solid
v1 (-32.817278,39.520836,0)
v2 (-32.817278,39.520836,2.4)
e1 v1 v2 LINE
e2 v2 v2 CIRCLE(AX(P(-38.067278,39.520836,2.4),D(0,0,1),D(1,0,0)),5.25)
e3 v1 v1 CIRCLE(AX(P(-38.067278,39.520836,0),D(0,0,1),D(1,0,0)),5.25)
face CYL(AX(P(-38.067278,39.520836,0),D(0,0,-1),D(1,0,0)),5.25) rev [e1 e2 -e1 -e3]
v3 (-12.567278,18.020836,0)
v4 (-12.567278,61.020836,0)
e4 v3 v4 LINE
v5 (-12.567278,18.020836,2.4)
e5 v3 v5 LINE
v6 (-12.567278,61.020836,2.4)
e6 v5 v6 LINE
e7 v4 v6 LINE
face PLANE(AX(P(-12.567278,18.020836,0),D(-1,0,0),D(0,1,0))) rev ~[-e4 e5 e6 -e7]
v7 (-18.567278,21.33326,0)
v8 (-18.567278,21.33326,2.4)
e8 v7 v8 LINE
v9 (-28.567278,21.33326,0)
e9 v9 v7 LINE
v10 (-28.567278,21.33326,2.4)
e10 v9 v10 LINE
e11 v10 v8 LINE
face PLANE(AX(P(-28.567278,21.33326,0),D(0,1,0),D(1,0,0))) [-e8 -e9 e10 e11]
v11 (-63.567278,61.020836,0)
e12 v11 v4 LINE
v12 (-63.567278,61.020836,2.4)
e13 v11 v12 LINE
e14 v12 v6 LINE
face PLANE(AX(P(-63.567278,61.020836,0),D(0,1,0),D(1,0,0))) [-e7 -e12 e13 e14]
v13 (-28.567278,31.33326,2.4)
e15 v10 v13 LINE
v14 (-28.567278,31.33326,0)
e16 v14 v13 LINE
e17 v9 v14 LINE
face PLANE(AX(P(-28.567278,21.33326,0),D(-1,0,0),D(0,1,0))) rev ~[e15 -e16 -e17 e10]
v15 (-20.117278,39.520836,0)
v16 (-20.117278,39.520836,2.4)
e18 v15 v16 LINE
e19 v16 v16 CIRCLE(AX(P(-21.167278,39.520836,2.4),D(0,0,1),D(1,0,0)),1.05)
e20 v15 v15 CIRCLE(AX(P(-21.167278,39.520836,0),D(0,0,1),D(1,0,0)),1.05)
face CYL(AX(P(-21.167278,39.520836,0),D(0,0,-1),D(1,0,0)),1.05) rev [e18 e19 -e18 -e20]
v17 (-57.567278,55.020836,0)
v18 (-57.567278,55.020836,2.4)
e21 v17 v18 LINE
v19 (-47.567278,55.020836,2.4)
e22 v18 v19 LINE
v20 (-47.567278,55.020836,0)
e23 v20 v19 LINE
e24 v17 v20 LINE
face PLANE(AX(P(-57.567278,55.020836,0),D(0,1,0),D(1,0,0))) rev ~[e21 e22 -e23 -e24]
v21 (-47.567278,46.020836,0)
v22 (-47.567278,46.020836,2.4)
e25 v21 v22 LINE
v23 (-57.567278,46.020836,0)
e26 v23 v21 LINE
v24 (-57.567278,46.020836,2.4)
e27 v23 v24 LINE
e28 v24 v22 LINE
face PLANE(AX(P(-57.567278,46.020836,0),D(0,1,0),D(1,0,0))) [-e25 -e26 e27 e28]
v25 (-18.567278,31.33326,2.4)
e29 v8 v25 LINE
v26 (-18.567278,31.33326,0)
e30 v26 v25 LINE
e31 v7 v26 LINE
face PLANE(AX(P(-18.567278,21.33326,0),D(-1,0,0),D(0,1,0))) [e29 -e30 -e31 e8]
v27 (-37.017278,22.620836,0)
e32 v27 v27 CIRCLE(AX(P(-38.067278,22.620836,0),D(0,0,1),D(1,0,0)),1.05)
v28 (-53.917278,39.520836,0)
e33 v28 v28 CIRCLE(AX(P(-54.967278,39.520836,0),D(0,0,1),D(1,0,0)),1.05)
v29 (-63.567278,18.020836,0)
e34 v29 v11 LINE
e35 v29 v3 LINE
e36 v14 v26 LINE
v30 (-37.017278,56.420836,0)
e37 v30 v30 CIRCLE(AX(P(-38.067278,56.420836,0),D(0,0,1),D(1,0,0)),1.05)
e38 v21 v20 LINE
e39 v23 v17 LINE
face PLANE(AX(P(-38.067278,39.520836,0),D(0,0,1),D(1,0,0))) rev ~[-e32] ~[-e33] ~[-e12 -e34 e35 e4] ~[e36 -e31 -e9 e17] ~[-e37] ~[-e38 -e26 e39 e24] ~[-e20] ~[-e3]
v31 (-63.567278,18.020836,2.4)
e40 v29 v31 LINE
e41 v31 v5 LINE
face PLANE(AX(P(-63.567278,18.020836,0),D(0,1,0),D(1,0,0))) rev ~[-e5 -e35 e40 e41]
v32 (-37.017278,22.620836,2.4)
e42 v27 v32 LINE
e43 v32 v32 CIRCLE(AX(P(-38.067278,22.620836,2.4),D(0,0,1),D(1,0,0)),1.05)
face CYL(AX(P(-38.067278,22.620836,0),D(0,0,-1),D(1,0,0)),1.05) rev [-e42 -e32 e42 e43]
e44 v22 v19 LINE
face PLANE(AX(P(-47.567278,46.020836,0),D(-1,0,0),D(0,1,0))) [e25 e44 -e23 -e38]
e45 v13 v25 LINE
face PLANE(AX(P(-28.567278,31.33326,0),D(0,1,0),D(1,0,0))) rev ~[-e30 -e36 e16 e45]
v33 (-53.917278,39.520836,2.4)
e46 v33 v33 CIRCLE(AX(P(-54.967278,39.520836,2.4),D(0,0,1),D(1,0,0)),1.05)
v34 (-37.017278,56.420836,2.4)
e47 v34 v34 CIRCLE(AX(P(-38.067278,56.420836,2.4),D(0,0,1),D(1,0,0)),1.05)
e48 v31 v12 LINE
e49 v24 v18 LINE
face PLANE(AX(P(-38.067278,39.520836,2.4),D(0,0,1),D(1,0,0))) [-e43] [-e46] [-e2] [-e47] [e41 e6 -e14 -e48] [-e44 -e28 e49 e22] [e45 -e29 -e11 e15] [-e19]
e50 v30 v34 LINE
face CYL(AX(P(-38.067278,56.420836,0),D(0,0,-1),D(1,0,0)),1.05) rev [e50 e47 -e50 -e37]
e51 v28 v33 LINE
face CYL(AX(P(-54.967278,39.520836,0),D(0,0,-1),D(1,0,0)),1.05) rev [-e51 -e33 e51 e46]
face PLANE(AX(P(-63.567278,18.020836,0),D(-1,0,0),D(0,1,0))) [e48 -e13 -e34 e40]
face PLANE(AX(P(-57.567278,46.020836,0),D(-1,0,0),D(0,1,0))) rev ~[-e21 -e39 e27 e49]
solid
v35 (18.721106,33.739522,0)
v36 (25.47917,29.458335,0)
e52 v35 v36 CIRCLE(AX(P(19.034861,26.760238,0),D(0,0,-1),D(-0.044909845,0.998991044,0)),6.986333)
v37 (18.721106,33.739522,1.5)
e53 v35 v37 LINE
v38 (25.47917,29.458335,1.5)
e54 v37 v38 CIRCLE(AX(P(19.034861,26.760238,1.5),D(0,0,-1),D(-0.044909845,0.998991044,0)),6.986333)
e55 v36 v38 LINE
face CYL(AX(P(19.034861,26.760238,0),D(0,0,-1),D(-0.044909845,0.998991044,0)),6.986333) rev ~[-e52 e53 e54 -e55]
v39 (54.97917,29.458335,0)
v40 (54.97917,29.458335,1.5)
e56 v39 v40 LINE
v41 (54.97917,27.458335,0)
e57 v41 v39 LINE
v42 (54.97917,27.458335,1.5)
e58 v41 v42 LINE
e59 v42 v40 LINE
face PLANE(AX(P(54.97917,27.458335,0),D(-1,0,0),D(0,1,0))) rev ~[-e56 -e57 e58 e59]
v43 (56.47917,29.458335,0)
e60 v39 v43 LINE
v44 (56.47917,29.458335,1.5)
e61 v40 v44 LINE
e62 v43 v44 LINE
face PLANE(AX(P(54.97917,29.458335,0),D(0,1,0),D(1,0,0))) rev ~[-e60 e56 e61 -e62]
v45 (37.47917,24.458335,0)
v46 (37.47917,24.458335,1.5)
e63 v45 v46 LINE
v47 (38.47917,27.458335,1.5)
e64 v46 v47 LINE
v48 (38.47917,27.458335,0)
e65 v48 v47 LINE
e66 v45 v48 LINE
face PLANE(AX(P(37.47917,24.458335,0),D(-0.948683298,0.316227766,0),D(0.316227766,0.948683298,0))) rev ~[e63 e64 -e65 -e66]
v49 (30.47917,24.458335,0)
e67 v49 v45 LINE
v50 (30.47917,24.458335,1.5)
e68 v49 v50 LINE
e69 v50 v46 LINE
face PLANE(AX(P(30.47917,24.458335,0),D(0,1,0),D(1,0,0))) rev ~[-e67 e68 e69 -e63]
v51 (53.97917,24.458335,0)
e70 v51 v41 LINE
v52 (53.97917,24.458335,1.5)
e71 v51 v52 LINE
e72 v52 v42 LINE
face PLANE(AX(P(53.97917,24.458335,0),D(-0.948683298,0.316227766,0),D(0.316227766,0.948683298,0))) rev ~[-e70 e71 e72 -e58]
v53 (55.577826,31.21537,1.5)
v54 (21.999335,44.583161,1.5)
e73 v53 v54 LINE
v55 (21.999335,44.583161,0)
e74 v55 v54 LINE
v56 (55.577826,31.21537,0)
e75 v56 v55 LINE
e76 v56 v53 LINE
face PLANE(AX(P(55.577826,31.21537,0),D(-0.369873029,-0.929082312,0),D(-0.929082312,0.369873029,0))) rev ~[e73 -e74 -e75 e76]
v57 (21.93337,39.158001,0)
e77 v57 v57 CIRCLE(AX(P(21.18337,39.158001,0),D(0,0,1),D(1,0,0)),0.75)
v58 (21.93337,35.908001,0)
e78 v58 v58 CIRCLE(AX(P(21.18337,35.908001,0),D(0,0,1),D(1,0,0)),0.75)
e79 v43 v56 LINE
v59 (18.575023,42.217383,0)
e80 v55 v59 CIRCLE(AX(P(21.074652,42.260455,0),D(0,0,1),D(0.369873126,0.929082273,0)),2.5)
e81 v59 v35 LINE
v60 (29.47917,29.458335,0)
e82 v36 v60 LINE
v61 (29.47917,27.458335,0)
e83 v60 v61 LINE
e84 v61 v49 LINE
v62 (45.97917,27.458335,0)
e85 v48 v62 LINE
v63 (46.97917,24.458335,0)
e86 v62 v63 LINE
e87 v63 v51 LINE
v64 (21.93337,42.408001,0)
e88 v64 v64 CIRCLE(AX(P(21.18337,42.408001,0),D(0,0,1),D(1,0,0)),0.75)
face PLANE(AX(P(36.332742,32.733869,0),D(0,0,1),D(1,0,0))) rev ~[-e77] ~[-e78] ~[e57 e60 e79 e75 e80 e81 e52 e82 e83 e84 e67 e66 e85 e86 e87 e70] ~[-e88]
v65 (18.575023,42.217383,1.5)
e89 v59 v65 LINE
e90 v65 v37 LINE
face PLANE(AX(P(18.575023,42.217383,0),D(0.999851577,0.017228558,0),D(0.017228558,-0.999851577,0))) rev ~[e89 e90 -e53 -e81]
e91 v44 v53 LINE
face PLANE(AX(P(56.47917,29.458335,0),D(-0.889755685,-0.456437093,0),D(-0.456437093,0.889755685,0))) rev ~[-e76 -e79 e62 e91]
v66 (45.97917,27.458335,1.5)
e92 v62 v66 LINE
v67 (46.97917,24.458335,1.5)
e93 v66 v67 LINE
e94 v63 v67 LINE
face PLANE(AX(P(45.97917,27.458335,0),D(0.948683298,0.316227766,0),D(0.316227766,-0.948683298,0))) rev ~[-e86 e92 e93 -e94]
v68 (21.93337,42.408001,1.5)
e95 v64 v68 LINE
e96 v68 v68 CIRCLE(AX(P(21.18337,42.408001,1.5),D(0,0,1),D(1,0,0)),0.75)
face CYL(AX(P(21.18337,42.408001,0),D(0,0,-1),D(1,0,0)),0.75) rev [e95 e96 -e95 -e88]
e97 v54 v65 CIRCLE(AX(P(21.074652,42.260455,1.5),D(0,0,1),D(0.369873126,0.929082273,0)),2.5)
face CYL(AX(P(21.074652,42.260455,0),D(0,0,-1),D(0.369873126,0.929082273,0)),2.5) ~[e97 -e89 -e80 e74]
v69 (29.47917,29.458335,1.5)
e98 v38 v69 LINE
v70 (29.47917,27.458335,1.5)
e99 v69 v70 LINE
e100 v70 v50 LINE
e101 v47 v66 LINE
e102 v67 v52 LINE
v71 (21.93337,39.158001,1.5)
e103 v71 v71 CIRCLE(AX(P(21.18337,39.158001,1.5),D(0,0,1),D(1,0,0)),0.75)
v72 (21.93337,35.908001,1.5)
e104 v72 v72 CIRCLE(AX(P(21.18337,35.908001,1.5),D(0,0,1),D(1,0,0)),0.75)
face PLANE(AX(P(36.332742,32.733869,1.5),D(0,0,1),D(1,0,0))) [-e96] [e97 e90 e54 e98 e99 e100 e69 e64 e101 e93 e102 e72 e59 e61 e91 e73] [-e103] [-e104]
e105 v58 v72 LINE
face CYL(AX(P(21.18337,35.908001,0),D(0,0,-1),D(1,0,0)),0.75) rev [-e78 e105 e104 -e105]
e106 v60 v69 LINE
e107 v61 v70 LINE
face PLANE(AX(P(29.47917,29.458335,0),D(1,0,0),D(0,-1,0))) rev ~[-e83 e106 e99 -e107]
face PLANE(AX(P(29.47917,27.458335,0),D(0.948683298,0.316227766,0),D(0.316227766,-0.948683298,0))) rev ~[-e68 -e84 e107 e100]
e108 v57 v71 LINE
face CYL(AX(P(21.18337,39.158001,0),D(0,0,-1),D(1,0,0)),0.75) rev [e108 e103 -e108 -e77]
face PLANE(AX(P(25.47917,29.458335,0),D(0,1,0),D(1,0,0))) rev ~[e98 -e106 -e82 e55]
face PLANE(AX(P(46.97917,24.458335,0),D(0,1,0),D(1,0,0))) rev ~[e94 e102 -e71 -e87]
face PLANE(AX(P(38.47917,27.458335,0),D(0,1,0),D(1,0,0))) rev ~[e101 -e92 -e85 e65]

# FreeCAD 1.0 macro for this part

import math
import FreeCAD as App
import Part
import Sketcher
from FreeCAD import Vector
Q = App.Units.Quantity


def add_polygon(sketch, points):
    """Adds a closed chain of lines whose ends are joined by coincident constraints."""
    first, n = sketch.GeometryCount, len(points)
    for a, b in zip(points, points[1:] + points[:1]):
        sketch.addGeometry(Part.LineSegment(App.Vector(*a, 0), App.Vector(*b, 0)), False)
    for i in range(n):
        sketch.addConstraint(Sketcher.Constraint("Coincident", first + i, 2, first + (i + 1) % n, 1))

doc = App.newDocument("Part")
body = doc.addObject("PartDesign::Body", "Body")

# Sketch on XY plane
sketch1 = doc.addObject("Sketcher::SketchObject", "Sketch")
body.addObject(sketch1)
sketch1.AttachmentSupport = (doc.XY_Plane, [""])
sketch1.MapMode = "FlatFace"
sketch1.addGeometry([
    Part.LineSegment(Vector(56.5, 29.5, 0), Vector(55.6, 31.2, 0)),  # 0
    Part.LineSegment(Vector(55.6, 31.2, 0), Vector(22, 44.6, 0)),  # 1
    Part.ArcOfCircle(Part.Circle(Vector(21.1, 42.3, 0), Vector(0, 0, 1), 2.5), math.radians(68), math.radians(181)),  # 2
    Part.LineSegment(Vector(18.6, 42.2, 0), Vector(18.7, 33.7, 0)),  # 3
    Part.ArcOfCircle(Part.Circle(Vector(19, 26.8, 0), Vector(0, 0, 1), 7), math.radians(23), math.radians(93)),  # 4
    Part.LineSegment(Vector(25.5, 29.5, 0), Vector(29.5, 29.5, 0)),  # 5
    Part.LineSegment(Vector(29.5, 29.5, 0), Vector(29.5, 27.5, 0)),  # 6
    Part.LineSegment(Vector(29.5, 27.5, 0), Vector(30.5, 24.5, 0)),  # 7
    Part.LineSegment(Vector(30.5, 24.5, 0), Vector(37.5, 24.5, 0)),  # 8
    Part.LineSegment(Vector(37.5, 24.5, 0), Vector(38.5, 27.5, 0)),  # 9
    Part.LineSegment(Vector(38.5, 27.5, 0), Vector(46, 27.5, 0)),  # 10
    Part.LineSegment(Vector(46, 27.5, 0), Vector(47, 24.5, 0)),  # 11
    Part.LineSegment(Vector(47, 24.5, 0), Vector(54, 24.5, 0)),  # 12
    Part.LineSegment(Vector(54, 24.5, 0), Vector(55, 27.5, 0)),  # 13
    Part.LineSegment(Vector(55, 27.5, 0), Vector(55, 29.5, 0)),  # 14
    Part.LineSegment(Vector(55, 29.5, 0), Vector(56.5, 29.5, 0)),  # 15
    Part.Circle(Vector(21.2, 35.9, 0), Vector(0, 0, 1), 0.8),  # 16
    Part.Circle(Vector(21.2, 39.2, 0), Vector(0, 0, 1), 0.8),  # 17
    Part.Circle(Vector(21.2, 42.4, 0), Vector(0, 0, 1), 0.8),  # 18
], False)
sketch1.addConstraint([
    Sketcher.Constraint("Coincident", 0, 2, 1, 1),
    Sketcher.Constraint("Tangent", 1, 2, 2, 1),
    Sketcher.Constraint("Tangent", 2, 2, 3, 1),
    Sketcher.Constraint("Coincident", 3, 2, 4, 2),
    Sketcher.Constraint("Coincident", 4, 1, 5, 1),
    Sketcher.Constraint("Coincident", 5, 2, 6, 1),
    Sketcher.Constraint("Coincident", 6, 2, 7, 1),
    Sketcher.Constraint("Coincident", 7, 2, 8, 1),
    Sketcher.Constraint("Coincident", 8, 2, 9, 1),
    Sketcher.Constraint("Coincident", 9, 2, 10, 1),
    Sketcher.Constraint("Coincident", 10, 2, 11, 1),
    Sketcher.Constraint("Coincident", 11, 2, 12, 1),
    Sketcher.Constraint("Coincident", 12, 2, 13, 1),
    Sketcher.Constraint("Coincident", 13, 2, 14, 1),
    Sketcher.Constraint("Coincident", 14, 2, 15, 1),
    Sketcher.Constraint("Coincident", 15, 2, 0, 1),
    Sketcher.Constraint("Horizontal", 5),
    Sketcher.Constraint("Vertical", 6),
    Sketcher.Constraint("Horizontal", 8),
    Sketcher.Constraint("Horizontal", 10),
    Sketcher.Constraint("Horizontal", 12),
    Sketcher.Constraint("Vertical", 14),
    Sketcher.Constraint("Horizontal", 15),
    Sketcher.Constraint("Equal", 16, 17),
    Sketcher.Constraint("Equal", 17, 18),
    Sketcher.Constraint("Parallel", 7, 11),
    Sketcher.Constraint("Parallel", 9, 13),
    Sketcher.Constraint("Horizontal", 6, 2, 9, 2),
    Sketcher.Constraint("Horizontal", 8, 2, 11, 2),
    Sketcher.Constraint("Horizontal", 10, 2, 13, 2),
    Sketcher.Constraint("Horizontal", 5, 2, 14, 2),
    Sketcher.Constraint("Vertical", 16, 3, 17, 3),
    Sketcher.Constraint("Vertical", 17, 3, 18, 3),
    Sketcher.Constraint("Equal", 8, 12),
    Sketcher.Constraint("Equal", 7, 9),
    Sketcher.Constraint("Diameter", 16, Q("1.5 mm")),
    Sketcher.Constraint("Radius", 2, Q("2.5 mm")),
    Sketcher.Constraint("DistanceX", 5, 1, 5, 2, Q("4 mm")),
    Sketcher.Constraint("DistanceX", 8, 1, 8, 2, Q("7 mm")),
    Sketcher.Constraint("DistanceY", 6, 2, 6, 1, Q("2 mm")),
    Sketcher.Constraint("DistanceX", 10, 1, 10, 2, Q("7.5 mm")),
    Sketcher.Constraint("DistanceX", 15, 1, 15, 2, Q("1.5 mm")),
    Sketcher.Constraint("DistanceX", 6, 2, 7, 2, Q("1 mm")),
    Sketcher.Constraint("DistanceY", 7, 2, 6, 2, Q("3 mm")),
    Sketcher.Constraint("DistanceY", 16, 3, 18, 3, Q("6.5 mm")),
    Sketcher.Constraint("DistanceY", 16, 3, 17, 3, Q("3.25 mm")),
    Sketcher.Constraint("DistanceY", -1, 1, 16, 3, Q("35.908001 mm")),
    Sketcher.Constraint("Radius", 4, Q("6.986333 mm")),
    Sketcher.Constraint("DistanceX", 16, 3, 4, 1, Q("4.2958 mm")),
    Sketcher.Constraint("Distance", 0, Q("1.974739 mm")),
    Sketcher.Constraint("Distance", 3, Q("8.479119 mm")),
    Sketcher.Constraint("DistanceX", -1, 1, 4, 3, Q("19.034861 mm")),
    Sketcher.Constraint("DistanceY", -1, 1, 4, 3, Q("26.760238 mm")),
    Sketcher.Constraint("DistanceX", -1, 1, 16, 3, Q("21.18337 mm")),
    Sketcher.Constraint("DistanceY", -1, 1, 0, 2, Q("31.21537 mm")),
    Sketcher.Constraint("DistanceY", -1, 1, 1, 2, Q("44.583161 mm")),
    Sketcher.Constraint("DistanceX", 4, 3, 2, 3, Q("2.039791 mm")),
])
pad1 = doc.addObject("PartDesign::Pad", "Pad")
body.addObject(pad1)
pad1.Profile = sketch1
pad1.Length = 1.5
body2 = doc.addObject("PartDesign::Body", "Body001")

# Sketch on XY plane
sketch2 = doc.addObject("Sketcher::SketchObject", "Sketch001")
body2.addObject(sketch2)
sketch2.AttachmentSupport = (doc.getObject("XY_Plane001"), [""])
sketch2.MapMode = "FlatFace"
add_polygon(sketch2, [(-63.6, 61), (-63.6, 18), (-12.6, 18), (-12.6, 61)])  # lines 0-3
sketch2.addGeometry(Part.Circle(Vector(-38.1, 22.6, 0), Vector(0, 0, 1), 1.1), False)  # 4
add_polygon(sketch2, [(-18.6, 21.3), (-28.6, 21.3), (-28.6, 31.3), (-18.6, 31.3)])  # lines 5-8
sketch2.addGeometry(Part.Circle(Vector(-55, 39.5, 0), Vector(0, 0, 1), 1.1), False)  # 9
add_polygon(sketch2, [(-47.6, 46), (-57.6, 46), (-57.6, 55), (-47.6, 55)])  # lines 10-13
sketch2.addGeometry(Part.Circle(Vector(-38.1, 39.5, 0), Vector(0, 0, 1), 5.2), False)  # 14
sketch2.addGeometry(Part.Circle(Vector(-21.2, 39.5, 0), Vector(0, 0, 1), 1.1), False)  # 15
sketch2.addGeometry(Part.Circle(Vector(-38.1, 56.4, 0), Vector(0, 0, 1), 1.1), False)  # 16
sketch2.addConstraint([
    Sketcher.Constraint("Vertical", 0),
    Sketcher.Constraint("Horizontal", 1),
    Sketcher.Constraint("Vertical", 2),
    Sketcher.Constraint("Horizontal", 3),
    Sketcher.Constraint("Horizontal", 5),
    Sketcher.Constraint("Vertical", 6),
    Sketcher.Constraint("Horizontal", 7),
    Sketcher.Constraint("Vertical", 8),
    Sketcher.Constraint("Horizontal", 10),
    Sketcher.Constraint("Vertical", 11),
    Sketcher.Constraint("Horizontal", 12),
    Sketcher.Constraint("Vertical", 13),
    Sketcher.Constraint("Equal", 4, 9),
    Sketcher.Constraint("Equal", 9, 15),
    Sketcher.Constraint("Equal", 15, 16),
    Sketcher.Constraint("Horizontal", 9, 3, 14, 3),
    Sketcher.Constraint("Horizontal", 14, 3, 15, 3),
    Sketcher.Constraint("Vertical", 4, 3, 14, 3),
    Sketcher.Constraint("Vertical", 14, 3, 16, 3),
    Sketcher.Constraint("Equal", 7, 10),
    Sketcher.Constraint("Equal", 12, 6),
    Sketcher.Constraint("Diameter", 4, Q("2.1 mm")),
    Sketcher.Constraint("Diameter", 14, Q("10.5 mm")),
    Sketcher.Constraint("DistanceX", 1, 1, 1, 2, Q("51 mm")),
    Sketcher.Constraint("DistanceX", 5, 2, 5, 1, Q("10 mm")),
    Sketcher.Constraint("DistanceY", 0, 2, 0, 1, Q("43 mm")),
    Sketcher.Constraint("DistanceY", 11, 1, 11, 2, Q("9 mm")),
    Sketcher.Constraint("DistanceX", 5, 2, 1, 2, Q("16 mm")),
    Sketcher.Constraint("DistanceX", 3, 2, 10, 2, Q("6 mm")),
    Sketcher.Constraint("DistanceY", 10, 2, 3, 2, Q("15 mm")),
    Sketcher.Constraint("DistanceX", 9, 3, 4, 3, Q("16.9 mm")),
    Sketcher.Constraint("DistanceY", 4, 3, 9, 3, Q("16.9 mm")),
    Sketcher.Constraint("DistanceX", 14, 3, 15, 3, Q("16.9 mm")),
    Sketcher.Constraint("DistanceY", 14, 3, 16, 3, Q("16.9 mm")),
    Sketcher.Constraint("DistanceX", 0, 2, 9, 3, Q("8.6 mm")),
    Sketcher.Constraint("DistanceY", 0, 2, 9, 3, Q("21.5 mm")),
    Sketcher.Constraint("DistanceX", 4, 3, -1, 1, Q("38.067278 mm")),
    Sketcher.Constraint("DistanceY", -1, 1, 5, 2, Q("21.33326 mm")),
    Sketcher.Constraint("DistanceY", -1, 1, 4, 3, Q("22.620836 mm")),
])
pad2 = doc.addObject("PartDesign::Pad", "Pad001")
body2.addObject(pad2)
pad2.Profile = sketch2
pad2.Length = 2.4

doc.recompute()
